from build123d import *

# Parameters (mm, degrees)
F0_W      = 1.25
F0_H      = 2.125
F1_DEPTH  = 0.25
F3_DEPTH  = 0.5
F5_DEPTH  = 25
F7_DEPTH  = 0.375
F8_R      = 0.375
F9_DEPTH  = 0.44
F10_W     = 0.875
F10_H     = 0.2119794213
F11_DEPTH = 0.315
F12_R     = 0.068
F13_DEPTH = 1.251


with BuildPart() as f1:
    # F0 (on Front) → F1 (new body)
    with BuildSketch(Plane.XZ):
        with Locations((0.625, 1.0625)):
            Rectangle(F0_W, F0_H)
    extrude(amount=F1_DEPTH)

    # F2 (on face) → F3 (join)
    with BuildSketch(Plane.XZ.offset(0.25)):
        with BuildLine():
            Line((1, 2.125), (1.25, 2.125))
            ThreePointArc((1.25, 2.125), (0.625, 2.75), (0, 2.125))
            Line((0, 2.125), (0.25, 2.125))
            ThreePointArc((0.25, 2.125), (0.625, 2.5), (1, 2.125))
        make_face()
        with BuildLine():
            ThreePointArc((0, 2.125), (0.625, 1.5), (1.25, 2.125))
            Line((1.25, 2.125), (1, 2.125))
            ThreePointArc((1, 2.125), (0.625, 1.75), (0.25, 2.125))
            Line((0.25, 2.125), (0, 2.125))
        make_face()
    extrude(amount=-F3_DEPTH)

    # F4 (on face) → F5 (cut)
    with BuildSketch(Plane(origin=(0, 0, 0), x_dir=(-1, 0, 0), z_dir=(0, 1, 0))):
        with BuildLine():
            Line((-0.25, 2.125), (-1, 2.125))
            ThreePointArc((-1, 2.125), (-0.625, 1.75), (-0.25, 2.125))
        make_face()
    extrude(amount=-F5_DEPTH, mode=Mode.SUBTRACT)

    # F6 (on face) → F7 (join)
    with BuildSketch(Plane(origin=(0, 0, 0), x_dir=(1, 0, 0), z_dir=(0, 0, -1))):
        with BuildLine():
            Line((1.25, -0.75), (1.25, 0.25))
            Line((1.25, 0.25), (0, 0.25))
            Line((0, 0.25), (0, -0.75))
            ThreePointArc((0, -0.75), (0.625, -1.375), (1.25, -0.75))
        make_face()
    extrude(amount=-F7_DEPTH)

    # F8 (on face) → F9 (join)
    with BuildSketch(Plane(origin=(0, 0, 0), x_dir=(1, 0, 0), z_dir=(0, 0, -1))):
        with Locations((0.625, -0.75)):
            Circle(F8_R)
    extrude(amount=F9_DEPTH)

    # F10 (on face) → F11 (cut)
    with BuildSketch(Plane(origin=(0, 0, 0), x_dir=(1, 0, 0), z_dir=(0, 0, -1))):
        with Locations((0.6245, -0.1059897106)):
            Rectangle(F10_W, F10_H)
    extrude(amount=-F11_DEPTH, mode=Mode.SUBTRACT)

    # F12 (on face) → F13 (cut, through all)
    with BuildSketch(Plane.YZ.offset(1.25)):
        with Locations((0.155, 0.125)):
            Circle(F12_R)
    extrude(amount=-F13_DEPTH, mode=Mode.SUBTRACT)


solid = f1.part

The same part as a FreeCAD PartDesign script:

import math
import FreeCAD as App
import Part
import Sketcher
Q = App.Units.Quantity

doc = App.newDocument("Part")
body = doc.addObject("PartDesign::Body", "Body")

# Sketch on XZ plane
sketch1 = body.newObject("Sketcher::SketchObject", "Sketch")
sketch1.AttachmentSupport = (doc.getObject("XZ_Plane"), [""])
sketch1.MapMode = "FlatFace"
sketch1.addGeometry(Part.LineSegment(App.Vector(0, 2.1, 0), App.Vector(0, 0, 0)), False)
sketch1.addGeometry(Part.LineSegment(App.Vector(0, 0, 0), App.Vector(1.2, 0, 0)), False)
sketch1.addGeometry(Part.LineSegment(App.Vector(1.2, 0, 0), App.Vector(1.2, 2.1, 0)), False)
sketch1.addGeometry(Part.LineSegment(App.Vector(1.2, 2.1, 0), App.Vector(0, 2.1, 0)), False)
sketch1.addConstraint(Sketcher.Constraint("Coincident", 0, 2, 1, 1))
sketch1.addConstraint(Sketcher.Constraint("Coincident", 1, 2, 2, 1))
sketch1.addConstraint(Sketcher.Constraint("Coincident", 2, 2, 3, 1))
sketch1.addConstraint(Sketcher.Constraint("Coincident", 3, 2, 0, 1))
sketch1.addConstraint(Sketcher.Constraint("Vertical", 0))
sketch1.addConstraint(Sketcher.Constraint("Horizontal", 1))
sketch1.addConstraint(Sketcher.Constraint("Vertical", 2))
sketch1.addConstraint(Sketcher.Constraint("Horizontal", 3))
sketch1.addConstraint(Sketcher.Constraint("Coincident", 0, 2, -1, 1))
sketch1.addConstraint(Sketcher.Constraint("DistanceX", 1, 1, 1, 2, Q("1.25 mm")))
sketch1.addConstraint(Sketcher.Constraint("DistanceY", 0, 2, 0, 1, Q("2.125 mm")))
pad1 = body.newObject("PartDesign::Pad", "Pad")
pad1.Profile = sketch1
pad1.Length = 0.25

# Sketch on XZ plane
sketch2 = body.newObject("Sketcher::SketchObject", "Sketch001")
sketch2.AttachmentSupport = (doc.getObject("XZ_Plane"), [""])
sketch2.MapMode = "FlatFace"
sketch2.AttachmentOffset = App.Placement(App.Vector(0, 0, 0.25), App.Rotation())
sketch2.addGeometry(Part.Circle(App.Vector(0.62, 2.12, 0), App.Vector(0, 0, 1), 0.62), False)
sketch2.addGeometry(Part.Circle(App.Vector(0.62, 2.12, 0), App.Vector(0, 0, 1), 0.38), False)
sketch2.addConstraint(Sketcher.Constraint("Coincident", 1, 3, 0, 3))
sketch2.addConstraint(Sketcher.Constraint("Diameter", 0, Q("1.25 mm")))
sketch2.addConstraint(Sketcher.Constraint("Diameter", 1, Q("0.75 mm")))
sketch2.addConstraint(Sketcher.Constraint("DistanceX", -1, 1, 0, 3, Q("0.625 mm")))
sketch2.addConstraint(Sketcher.Constraint("DistanceY", -1, 1, 0, 3, Q("2.125 mm")))
pad2 = body.newObject("PartDesign::Pad", "Pad001")
pad2.Profile = sketch2
pad2.Length = 0.5
pad2.Reversed = True

# Sketch on XZ plane
sketch3 = body.newObject("Sketcher::SketchObject", "Sketch002")
sketch3.AttachmentSupport = (doc.getObject("XZ_Plane"), [""])
sketch3.MapMode = "FlatFace"
sketch3.addGeometry(Part.LineSegment(App.Vector(0.25, 2.12, 0), App.Vector(1, 2.12, 0)), False)
sketch3.addGeometry(Part.ArcOfCircle(Part.Circle(App.Vector(0.62, 2.12, 0), App.Vector(0, 0, 1), 0.38), math.radians(180), math.radians(360)), False)
sketch3.addConstraint(Sketcher.Constraint("Coincident", 0, 1, 1, 1))
sketch3.addConstraint(Sketcher.Constraint("Coincident", 1, 2, 0, 2))
sketch3.addConstraint(Sketcher.Constraint("Horizontal", 0))
sketch3.addConstraint(Sketcher.Constraint("Horizontal", 1, 3, 0, 1))
sketch3.addConstraint(Sketcher.Constraint("DistanceX", -1, 1, 1, 2, Q("1 mm")))
sketch3.addConstraint(Sketcher.Constraint("Radius", 1, Q("0.375 mm")))
sketch3.addConstraint(Sketcher.Constraint("DistanceY", -1, 1, 1, 3, Q("2.125 mm")))
pocket1 = body.newObject("PartDesign::Pocket", "Pocket")
pocket1.Profile = sketch3
pocket1.Length = 25
pocket1.Reversed = True

# Sketch on XY plane
sketch4 = body.newObject("Sketcher::SketchObject", "Sketch003")
sketch4.AttachmentSupport = (doc.getObject("XY_Plane"), [""])
sketch4.MapMode = "FlatFace"
sketch4.addGeometry(Part.LineSegment(App.Vector(1.2, 0.8, 0), App.Vector(1.2, -0.2, 0)), False)
sketch4.addGeometry(Part.LineSegment(App.Vector(1.2, -0.2, 0), App.Vector(0, -0.2, 0)), False)
sketch4.addGeometry(Part.LineSegment(App.Vector(0, -0.2, 0), App.Vector(0, 0.8, 0)), False)
sketch4.addGeometry(Part.ArcOfCircle(Part.Circle(App.Vector(0.6, 0.8, 0), App.Vector(0, 0, 1), 0.6), math.radians(0), math.radians(180)), False)
sketch4.addConstraint(Sketcher.Constraint("Coincident", 0, 2, 1, 1))
sketch4.addConstraint(Sketcher.Constraint("Coincident", 1, 2, 2, 1))
sketch4.addConstraint(Sketcher.Constraint("Tangent", 2, 2, 3, 2))
sketch4.addConstraint(Sketcher.Constraint("Tangent", 3, 1, 0, 1))
sketch4.addConstraint(Sketcher.Constraint("Vertical", 0))
sketch4.addConstraint(Sketcher.Constraint("Horizontal", 1))
sketch4.addConstraint(Sketcher.Constraint("Vertical", 2))
sketch4.addConstraint(Sketcher.Constraint("PointOnObject", 1, 2, -2))
sketch4.addConstraint(Sketcher.Constraint("DistanceY", 0, 2, 0, 1, Q("1 mm")))
sketch4.addConstraint(Sketcher.Constraint("Radius", 3, Q("0.625 mm")))
sketch4.addConstraint(Sketcher.Constraint("DistanceY", -1, 1, 3, 3, Q("0.75 mm")))
pad3 = body.newObject("PartDesign::Pad", "Pad002")
pad3.Profile = sketch4
pad3.Length = 0.375

# Sketch on XY plane
sketch5 = body.newObject("Sketcher::SketchObject", "Sketch004")
sketch5.AttachmentSupport = (doc.getObject("XY_Plane"), [""])
sketch5.MapMode = "FlatFace"
sketch5.addGeometry(Part.Circle(App.Vector(0.62, 0.75, 0), App.Vector(0, 0, 1), 0.38), False)
sketch5.addConstraint(Sketcher.Constraint("Diameter", 0, Q("0.75 mm")))
sketch5.addConstraint(Sketcher.Constraint("DistanceY", -1, 1, 0, 3, Q("0.75 mm")))
sketch5.addConstraint(Sketcher.Constraint("DistanceX", -1, 1, 0, 3, Q("0.625 mm")))
pad4 = body.newObject("PartDesign::Pad", "Pad003")
pad4.Profile = sketch5
pad4.Length = 0.44
pad4.Reversed = True

# Sketch on XY plane
sketch6 = body.newObject("Sketcher::SketchObject", "Sketch005")
sketch6.AttachmentSupport = (doc.getObject("XY_Plane"), [""])
sketch6.MapMode = "FlatFace"
sketch6.addGeometry(Part.LineSegment(App.Vector(0.19, 0, 0), App.Vector(0.19, 0.21, 0)), False)
sketch6.addGeometry(Part.LineSegment(App.Vector(0.19, 0.21, 0), App.Vector(1.06, 0.21, 0)), False)
sketch6.addGeometry(Part.LineSegment(App.Vector(1.06, 0.21, 0), App.Vector(1.06, 0, 0)), False)
sketch6.addGeometry(Part.LineSegment(App.Vector(1.06, 0, 0), App.Vector(0.19, 0, 0)), False)
sketch6.addConstraint(Sketcher.Constraint("Coincident", 0, 2, 1, 1))
sketch6.addConstraint(Sketcher.Constraint("Coincident", 1, 2, 2, 1))
sketch6.addConstraint(Sketcher.Constraint("Coincident", 2, 2, 3, 1))
sketch6.addConstraint(Sketcher.Constraint("Coincident", 3, 2, 0, 1))
sketch6.addConstraint(Sketcher.Constraint("Vertical", 0))
sketch6.addConstraint(Sketcher.Constraint("Horizontal", 1))
sketch6.addConstraint(Sketcher.Constraint("Vertical", 2))
sketch6.addConstraint(Sketcher.Constraint("Horizontal", 3))
sketch6.addConstraint(Sketcher.Constraint("PointOnObject", 2, 2, -1))
sketch6.addConstraint(Sketcher.Constraint("DistanceX", 1, 1, 1, 2, Q("0.875 mm")))
sketch6.addConstraint(Sketcher.Constraint("DistanceX", -1, 1, 0, 2, Q("0.187 mm")))
sketch6.addConstraint(Sketcher.Constraint("DistanceY", 0, 1, 0, 2, Q("0.211979 mm")))
pocket2 = body.newObject("PartDesign::Pocket", "Pocket001")
pocket2.Profile = sketch6
pocket2.Length = 0.315
pocket2.Reversed = True

# Sketch on YZ plane
sketch7 = body.newObject("Sketcher::SketchObject", "Sketch006")
sketch7.AttachmentSupport = (doc.getObject("YZ_Plane"), [""])
sketch7.MapMode = "FlatFace"
sketch7.AttachmentOffset = App.Placement(App.Vector(0, 0, 1.25), App.Rotation())
sketch7.addGeometry(Part.Circle(App.Vector(0.15, 0.12, 0), App.Vector(0, 0, 1), 0.07), False)
sketch7.addConstraint(Sketcher.Constraint("Diameter", 0, Q("0.136 mm")))
sketch7.addConstraint(Sketcher.Constraint("DistanceX", -1, 1, 0, 3, Q("0.155 mm")))
sketch7.addConstraint(Sketcher.Constraint("DistanceY", -1, 1, 0, 3, Q("0.125 mm")))
pocket3 = body.newObject("PartDesign::Pocket", "Pocket002")
pocket3.Profile = sketch7
pocket3.Type = "ThroughAll"

doc.recompute()
